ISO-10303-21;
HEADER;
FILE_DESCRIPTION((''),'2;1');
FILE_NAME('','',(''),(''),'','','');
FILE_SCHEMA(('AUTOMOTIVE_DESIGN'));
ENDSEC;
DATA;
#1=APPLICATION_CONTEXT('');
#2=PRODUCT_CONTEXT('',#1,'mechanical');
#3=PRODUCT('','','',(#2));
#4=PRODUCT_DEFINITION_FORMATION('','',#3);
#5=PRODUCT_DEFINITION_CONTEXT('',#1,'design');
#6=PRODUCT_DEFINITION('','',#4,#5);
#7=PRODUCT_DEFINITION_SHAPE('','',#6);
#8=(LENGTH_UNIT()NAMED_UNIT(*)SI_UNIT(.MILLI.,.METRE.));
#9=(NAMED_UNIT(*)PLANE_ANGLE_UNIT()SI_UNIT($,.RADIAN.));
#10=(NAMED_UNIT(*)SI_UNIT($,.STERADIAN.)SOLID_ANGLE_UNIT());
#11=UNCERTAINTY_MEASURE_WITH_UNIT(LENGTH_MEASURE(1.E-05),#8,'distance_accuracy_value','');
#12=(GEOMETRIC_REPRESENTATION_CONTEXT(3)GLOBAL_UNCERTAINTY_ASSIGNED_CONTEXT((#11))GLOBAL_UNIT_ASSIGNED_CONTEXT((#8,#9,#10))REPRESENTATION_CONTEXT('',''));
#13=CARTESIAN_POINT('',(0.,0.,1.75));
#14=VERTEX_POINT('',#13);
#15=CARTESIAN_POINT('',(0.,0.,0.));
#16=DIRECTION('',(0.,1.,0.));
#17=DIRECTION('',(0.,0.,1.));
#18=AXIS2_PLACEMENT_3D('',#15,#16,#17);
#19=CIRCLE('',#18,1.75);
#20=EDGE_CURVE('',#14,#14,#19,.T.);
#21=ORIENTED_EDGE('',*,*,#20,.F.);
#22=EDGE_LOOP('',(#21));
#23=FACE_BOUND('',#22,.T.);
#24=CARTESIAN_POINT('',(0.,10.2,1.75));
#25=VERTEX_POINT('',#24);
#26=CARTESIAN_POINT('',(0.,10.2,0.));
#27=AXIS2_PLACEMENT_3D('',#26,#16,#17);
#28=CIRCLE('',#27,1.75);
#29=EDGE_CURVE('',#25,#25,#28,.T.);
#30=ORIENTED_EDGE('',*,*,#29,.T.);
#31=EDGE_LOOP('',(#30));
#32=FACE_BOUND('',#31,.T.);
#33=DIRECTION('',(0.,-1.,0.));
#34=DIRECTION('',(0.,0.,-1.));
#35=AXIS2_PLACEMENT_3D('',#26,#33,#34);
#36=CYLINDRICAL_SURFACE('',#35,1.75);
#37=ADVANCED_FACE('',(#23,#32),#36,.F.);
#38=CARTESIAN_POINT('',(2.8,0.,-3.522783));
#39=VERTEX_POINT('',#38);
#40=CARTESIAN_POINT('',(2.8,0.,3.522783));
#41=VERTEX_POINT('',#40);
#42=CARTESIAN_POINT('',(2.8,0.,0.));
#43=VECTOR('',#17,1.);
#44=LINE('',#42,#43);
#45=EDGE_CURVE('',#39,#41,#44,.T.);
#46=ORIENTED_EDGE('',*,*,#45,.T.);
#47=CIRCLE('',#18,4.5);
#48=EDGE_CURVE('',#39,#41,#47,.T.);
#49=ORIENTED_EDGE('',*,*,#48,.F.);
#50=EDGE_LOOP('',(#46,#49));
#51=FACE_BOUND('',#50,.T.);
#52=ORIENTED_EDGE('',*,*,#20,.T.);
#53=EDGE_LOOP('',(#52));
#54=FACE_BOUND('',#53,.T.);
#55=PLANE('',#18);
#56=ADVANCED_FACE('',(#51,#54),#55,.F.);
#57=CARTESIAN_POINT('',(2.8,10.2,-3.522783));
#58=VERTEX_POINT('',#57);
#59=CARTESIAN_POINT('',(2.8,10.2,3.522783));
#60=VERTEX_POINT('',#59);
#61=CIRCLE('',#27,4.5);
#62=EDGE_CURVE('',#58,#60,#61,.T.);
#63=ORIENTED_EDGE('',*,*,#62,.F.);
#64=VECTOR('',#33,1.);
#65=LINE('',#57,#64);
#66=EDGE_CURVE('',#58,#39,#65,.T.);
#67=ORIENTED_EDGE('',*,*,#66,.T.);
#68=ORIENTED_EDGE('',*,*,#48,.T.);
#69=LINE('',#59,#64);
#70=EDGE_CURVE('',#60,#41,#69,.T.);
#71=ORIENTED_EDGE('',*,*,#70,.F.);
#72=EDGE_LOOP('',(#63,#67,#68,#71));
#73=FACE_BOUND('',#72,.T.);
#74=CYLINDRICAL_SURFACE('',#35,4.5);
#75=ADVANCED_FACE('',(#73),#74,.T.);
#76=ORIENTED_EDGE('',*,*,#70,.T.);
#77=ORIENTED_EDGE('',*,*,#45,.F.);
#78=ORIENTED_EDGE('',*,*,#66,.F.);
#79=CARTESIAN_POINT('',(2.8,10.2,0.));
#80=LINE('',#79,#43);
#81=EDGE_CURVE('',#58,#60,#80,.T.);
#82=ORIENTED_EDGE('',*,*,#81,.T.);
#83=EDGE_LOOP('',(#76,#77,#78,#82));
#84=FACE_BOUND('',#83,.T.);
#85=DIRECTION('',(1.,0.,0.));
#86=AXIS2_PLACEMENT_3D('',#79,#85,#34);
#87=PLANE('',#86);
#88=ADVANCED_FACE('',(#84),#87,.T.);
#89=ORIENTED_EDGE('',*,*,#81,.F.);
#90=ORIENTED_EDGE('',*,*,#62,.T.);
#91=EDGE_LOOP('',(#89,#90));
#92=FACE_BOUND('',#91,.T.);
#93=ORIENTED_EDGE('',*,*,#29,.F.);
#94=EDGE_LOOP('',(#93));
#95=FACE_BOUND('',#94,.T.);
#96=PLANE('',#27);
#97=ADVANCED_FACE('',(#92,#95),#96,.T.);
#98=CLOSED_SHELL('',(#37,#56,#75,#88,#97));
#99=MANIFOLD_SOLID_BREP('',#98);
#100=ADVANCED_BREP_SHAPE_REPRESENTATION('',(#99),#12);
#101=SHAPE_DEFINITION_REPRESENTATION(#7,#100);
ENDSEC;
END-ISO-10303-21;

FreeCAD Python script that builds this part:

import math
import FreeCAD as App
import Part
import Sketcher
Q = App.Units.Quantity

doc = App.newDocument("Part")
body = doc.addObject("PartDesign::Body", "Body")

sketch1 = body.newObject("Sketcher::SketchObject", "Sketch")
sketch1.AttachmentSupport = (doc.getObject("XZ_Plane"), [""])
sketch1.MapMode = "FlatFace"
sketch1.addGeometry(Part.LineSegment(App.Vector(2.8, 3.5, 0), App.Vector(2.8, -3.5, 0)), False)
sketch1.addGeometry(Part.ArcOfCircle(Part.Circle(App.Vector(0, 0, 0), App.Vector(0, 0, 1), 4.5), math.radians(52), math.radians(308)), False)
sketch1.addGeometry(Part.Circle(App.Vector(0, 0, 0), App.Vector(0, 0, 1), 1.8), False)
sketch1.addConstraint(Sketcher.Constraint("Coincident", 0, 1, 1, 1))
sketch1.addConstraint(Sketcher.Constraint("Coincident", 1, 2, 0, 2))
sketch1.addConstraint(Sketcher.Constraint("Vertical", 0))
sketch1.addConstraint(Sketcher.Constraint("Coincident", 1, 3, -1, 1))
sketch1.addConstraint(Sketcher.Constraint("Coincident", 2, 3, -1, 1))
sketch1.addConstraint(Sketcher.Constraint("Diameter", 2, Q("3.5 mm")))
sketch1.addConstraint(Sketcher.Constraint("Radius", 1, Q("4.5 mm")))
sketch1.addConstraint(Sketcher.Constraint("DistanceX", -1, 1, 0, 1, Q("2.8 mm")))
pad1 = body.newObject("PartDesign::Pad", "Pad")
pad1.Profile = sketch1
pad1.Length = 10.2
pad1.Reversed = True

doc.recompute()
